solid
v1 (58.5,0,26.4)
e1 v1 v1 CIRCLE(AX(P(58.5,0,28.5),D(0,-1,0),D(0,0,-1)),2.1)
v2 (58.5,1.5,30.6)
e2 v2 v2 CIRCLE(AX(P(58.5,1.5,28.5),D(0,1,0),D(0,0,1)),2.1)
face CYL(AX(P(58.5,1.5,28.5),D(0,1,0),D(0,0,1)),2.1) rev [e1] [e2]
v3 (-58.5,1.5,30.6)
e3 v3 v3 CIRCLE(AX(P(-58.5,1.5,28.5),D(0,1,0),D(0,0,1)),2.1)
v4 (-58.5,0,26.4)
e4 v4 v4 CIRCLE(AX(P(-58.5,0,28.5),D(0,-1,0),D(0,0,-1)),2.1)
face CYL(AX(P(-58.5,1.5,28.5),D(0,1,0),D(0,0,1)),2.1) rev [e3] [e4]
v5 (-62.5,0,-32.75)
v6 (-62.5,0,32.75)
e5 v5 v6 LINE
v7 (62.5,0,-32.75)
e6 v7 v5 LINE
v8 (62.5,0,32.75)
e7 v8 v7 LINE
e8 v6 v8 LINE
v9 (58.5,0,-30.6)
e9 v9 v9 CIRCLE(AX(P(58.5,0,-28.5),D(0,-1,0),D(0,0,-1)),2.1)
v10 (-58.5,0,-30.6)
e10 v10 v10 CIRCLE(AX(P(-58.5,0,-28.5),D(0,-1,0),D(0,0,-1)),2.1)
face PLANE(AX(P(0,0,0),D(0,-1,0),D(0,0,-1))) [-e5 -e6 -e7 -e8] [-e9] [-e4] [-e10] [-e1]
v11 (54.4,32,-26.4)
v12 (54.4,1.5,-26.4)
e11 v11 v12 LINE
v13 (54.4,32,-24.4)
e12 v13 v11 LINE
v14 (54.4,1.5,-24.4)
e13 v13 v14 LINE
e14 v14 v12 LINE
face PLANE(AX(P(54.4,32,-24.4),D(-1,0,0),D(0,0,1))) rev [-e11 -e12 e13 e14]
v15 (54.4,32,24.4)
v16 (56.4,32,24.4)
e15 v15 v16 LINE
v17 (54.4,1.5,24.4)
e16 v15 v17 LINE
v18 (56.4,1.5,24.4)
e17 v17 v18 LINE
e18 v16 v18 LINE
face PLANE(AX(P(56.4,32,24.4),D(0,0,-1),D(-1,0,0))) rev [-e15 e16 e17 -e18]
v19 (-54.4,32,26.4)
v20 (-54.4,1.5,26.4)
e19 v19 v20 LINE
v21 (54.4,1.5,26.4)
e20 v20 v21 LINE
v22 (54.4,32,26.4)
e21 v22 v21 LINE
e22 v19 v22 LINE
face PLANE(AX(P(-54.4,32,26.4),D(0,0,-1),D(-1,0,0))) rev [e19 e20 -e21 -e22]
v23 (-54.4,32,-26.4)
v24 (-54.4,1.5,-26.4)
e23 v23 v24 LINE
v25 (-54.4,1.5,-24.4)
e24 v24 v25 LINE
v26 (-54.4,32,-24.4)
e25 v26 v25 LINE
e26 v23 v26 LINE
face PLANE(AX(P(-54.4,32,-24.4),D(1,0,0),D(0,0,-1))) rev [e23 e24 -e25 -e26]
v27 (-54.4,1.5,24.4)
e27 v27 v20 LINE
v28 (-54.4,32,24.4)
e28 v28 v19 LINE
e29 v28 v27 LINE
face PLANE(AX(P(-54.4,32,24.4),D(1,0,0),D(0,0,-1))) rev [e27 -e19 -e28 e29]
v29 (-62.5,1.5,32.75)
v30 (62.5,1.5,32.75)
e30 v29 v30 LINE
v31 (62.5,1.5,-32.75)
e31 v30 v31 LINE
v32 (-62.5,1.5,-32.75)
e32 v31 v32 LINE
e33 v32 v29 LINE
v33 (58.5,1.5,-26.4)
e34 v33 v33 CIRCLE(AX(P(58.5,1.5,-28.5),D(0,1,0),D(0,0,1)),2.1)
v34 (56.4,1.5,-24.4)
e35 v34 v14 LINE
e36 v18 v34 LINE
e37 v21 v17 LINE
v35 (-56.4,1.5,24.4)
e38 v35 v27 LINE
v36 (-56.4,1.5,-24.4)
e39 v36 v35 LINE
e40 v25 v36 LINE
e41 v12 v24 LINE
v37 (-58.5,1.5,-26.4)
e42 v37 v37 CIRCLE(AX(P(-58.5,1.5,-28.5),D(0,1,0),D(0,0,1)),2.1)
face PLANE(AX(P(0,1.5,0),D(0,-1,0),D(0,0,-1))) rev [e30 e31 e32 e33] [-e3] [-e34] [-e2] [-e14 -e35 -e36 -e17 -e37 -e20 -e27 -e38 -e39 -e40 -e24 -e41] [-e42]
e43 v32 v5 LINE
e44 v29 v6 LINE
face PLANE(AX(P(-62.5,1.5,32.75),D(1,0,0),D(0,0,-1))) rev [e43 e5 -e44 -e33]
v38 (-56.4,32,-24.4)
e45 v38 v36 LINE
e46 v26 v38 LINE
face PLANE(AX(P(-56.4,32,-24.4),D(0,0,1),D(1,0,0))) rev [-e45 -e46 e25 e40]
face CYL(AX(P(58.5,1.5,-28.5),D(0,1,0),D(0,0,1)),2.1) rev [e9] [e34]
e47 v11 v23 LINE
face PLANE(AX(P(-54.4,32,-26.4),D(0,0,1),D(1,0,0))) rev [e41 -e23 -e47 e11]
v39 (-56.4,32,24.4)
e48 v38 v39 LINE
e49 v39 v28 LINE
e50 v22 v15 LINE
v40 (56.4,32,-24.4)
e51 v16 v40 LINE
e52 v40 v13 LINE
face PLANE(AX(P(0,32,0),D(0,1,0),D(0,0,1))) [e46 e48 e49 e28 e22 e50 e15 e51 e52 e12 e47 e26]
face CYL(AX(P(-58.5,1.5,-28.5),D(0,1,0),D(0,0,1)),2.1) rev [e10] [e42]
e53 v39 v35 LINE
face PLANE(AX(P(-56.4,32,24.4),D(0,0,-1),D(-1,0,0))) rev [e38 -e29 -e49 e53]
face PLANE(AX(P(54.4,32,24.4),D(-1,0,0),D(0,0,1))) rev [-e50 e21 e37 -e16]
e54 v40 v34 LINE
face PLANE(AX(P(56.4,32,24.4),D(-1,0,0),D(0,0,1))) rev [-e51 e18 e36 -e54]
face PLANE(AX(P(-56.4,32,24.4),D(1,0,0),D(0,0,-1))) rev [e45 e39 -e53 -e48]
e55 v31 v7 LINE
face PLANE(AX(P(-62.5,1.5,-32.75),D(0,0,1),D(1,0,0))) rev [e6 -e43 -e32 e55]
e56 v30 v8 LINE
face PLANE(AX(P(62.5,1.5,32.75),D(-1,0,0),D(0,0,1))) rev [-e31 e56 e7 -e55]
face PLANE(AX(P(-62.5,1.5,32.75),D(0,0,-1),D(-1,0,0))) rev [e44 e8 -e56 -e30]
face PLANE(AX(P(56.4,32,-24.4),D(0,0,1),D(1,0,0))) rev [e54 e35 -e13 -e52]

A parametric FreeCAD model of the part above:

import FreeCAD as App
import Part
import Sketcher
Q = App.Units.Quantity

doc = App.newDocument("Part")
params = doc.addObject("Spreadsheet::Sheet", "Params")
for row, (alias, value) in enumerate([
    ("sketch1_width", "125 mm"),
    ("sketch1_height", "65.5 mm"),
    ("pad1_length", "1.5 mm"),
    ("sketch2_diameter", "4.2 mm"),
    ("hole_diameter", "4.2 mm"),
    ("sketch3_width", "2 mm"),
    ("sketch3_width2", "108.8 mm"),
    ("sketch3_height", "48.8 mm"),
    ("pad2_length", "30.5 mm"),
], start=1):
    params.set(f"A{row}", alias)
    params.set(f"B{row}", "=" + value)
    params.setAlias(f"B{row}", alias)

body = doc.addObject("PartDesign::Body", "Body")

# Sketch on XZ plane
sketch1 = body.newObject("Sketcher::SketchObject", "Sketch")
sketch1.AttachmentSupport = (doc.getObject("XZ_Plane"), [""])
sketch1.MapMode = "FlatFace"
sketch1.addGeometry([
    Part.LineSegment(App.Vector(-62, -33, 0), App.Vector(-62, 33, 0)),
    Part.LineSegment(App.Vector(-62, 33, 0), App.Vector(62, 33, 0)),
    Part.LineSegment(App.Vector(62, 33, 0), App.Vector(62, -33, 0)),
    Part.LineSegment(App.Vector(62, -33, 0), App.Vector(-62, -33, 0)),
], False)
sketch1.addConstraint([
    Sketcher.Constraint("Coincident", 0, 2, 1, 1),
    Sketcher.Constraint("Coincident", 1, 2, 2, 1),
    Sketcher.Constraint("Coincident", 2, 2, 3, 1),
    Sketcher.Constraint("Coincident", 3, 2, 0, 1),
    Sketcher.Constraint("Vertical", 0),
    Sketcher.Constraint("Horizontal", 1),
    Sketcher.Constraint("Vertical", 2),
    Sketcher.Constraint("Horizontal", 3),
    Sketcher.Constraint("Symmetric", 0, 2, 2, 2, -1, 1),
    Sketcher.Constraint("DistanceX", 1, 1, 1, 2, Q("125 mm")),
    Sketcher.Constraint("DistanceY", 0, 1, 0, 2, Q("65.5 mm")),
])
sketch1.setExpression("Constraints[9]", "Params.sketch1_width")
sketch1.setExpression("Constraints[10]", "Params.sketch1_height")
pad1 = body.newObject("PartDesign::Pad", "Pad")
pad1.Profile = sketch1
pad1.setExpression("Length", "Params.pad1_length")
pad1.Reversed = True

# Sketch on XZ plane
sketch2 = body.newObject("Sketcher::SketchObject", "Sketch001")
sketch2.AttachmentSupport = (doc.getObject("XZ_Plane"), [""])
sketch2.MapMode = "FlatFace"
sketch2.AttachmentOffset = App.Placement(App.Vector(0, 0, -1.5), App.Rotation())
sketch2.addGeometry([
    Part.Circle(App.Vector(-58.5, 28.5, 0), App.Vector(0, 0, 1), 2.1),
    Part.Circle(App.Vector(-58.5, -28.5, 0), App.Vector(0, 0, 1), 2.1),
    Part.Circle(App.Vector(58.5, -28.5, 0), App.Vector(0, 0, 1), 2.1),
    Part.Circle(App.Vector(58.5, 28.5, 0), App.Vector(0, 0, 1), 2.1),
], False)
sketch2.addConstraint([
    Sketcher.Constraint("Equal", 0, 1),
    Sketcher.Constraint("Equal", 1, 2),
    Sketcher.Constraint("Equal", 2, 3),
    Sketcher.Constraint("Symmetric", 0, 3, 2, 3, -1, 1),
    Sketcher.Constraint("Symmetric", 1, 3, 3, 3, -1, 1),
    Sketcher.Constraint("Symmetric", 1, 3, 2, 3, -2),
    Sketcher.Constraint("Diameter", 0, Q("4.2 mm")),
    Sketcher.Constraint("DistanceY", 1, 3, 0, 3, Q("57 mm")),
    Sketcher.Constraint("DistanceX", 1, 3, 2, 3, Q("117 mm")),
])
sketch2.setExpression("Constraints[6]", "Params.sketch2_diameter")
doc.recompute()
hole = body.newObject("PartDesign::Hole", "Hole")
hole.Profile = sketch2
hole.ThreadType = "None"
hole.setExpression("Diameter", "Params.hole_diameter")
hole.DepthType = "ThroughAll"
hole.Reversed = True

# Sketch on XZ plane
sketch3 = body.newObject("Sketcher::SketchObject", "Sketch002")
sketch3.AttachmentSupport = (doc.getObject("XZ_Plane"), [""])
sketch3.MapMode = "FlatFace"
sketch3.AttachmentOffset = App.Placement(App.Vector(0, 0, -1.5), App.Rotation())
sketch3.addGeometry([
    Part.LineSegment(App.Vector(54.4, 24.4, 0), App.Vector(56.4, 24.4, 0)),  # 0
    Part.LineSegment(App.Vector(56.4, 24.4, 0), App.Vector(56.4, -24.4, 0)),  # 1
    Part.LineSegment(App.Vector(56.4, -24.4, 0), App.Vector(54.4, -24.4, 0)),  # 2
    Part.LineSegment(App.Vector(54.4, -24.4, 0), App.Vector(54.4, -26.4, 0)),  # 3
    Part.LineSegment(App.Vector(54.4, -26.4, 0), App.Vector(-54.4, -26.4, 0)),  # 4
    Part.LineSegment(App.Vector(-54.4, -26.4, 0), App.Vector(-54.4, -24.4, 0)),  # 5
    Part.LineSegment(App.Vector(-54.4, -24.4, 0), App.Vector(-56.4, -24.4, 0)),  # 6
    Part.LineSegment(App.Vector(-56.4, -24.4, 0), App.Vector(-56.4, 24.4, 0)),  # 7
    Part.LineSegment(App.Vector(-56.4, 24.4, 0), App.Vector(-54.4, 24.4, 0)),  # 8
    Part.LineSegment(App.Vector(-54.4, 24.4, 0), App.Vector(-54.4, 26.4, 0)),  # 9
    Part.LineSegment(App.Vector(-54.4, 26.4, 0), App.Vector(54.4, 26.4, 0)),  # 10
    Part.LineSegment(App.Vector(54.4, 26.4, 0), App.Vector(54.4, 24.4, 0)),  # 11
], False)
sketch3.addConstraint([
    Sketcher.Constraint("Coincident", 0, 2, 1, 1),
    Sketcher.Constraint("Coincident", 1, 2, 2, 1),
    Sketcher.Constraint("Coincident", 2, 2, 3, 1),
    Sketcher.Constraint("Coincident", 3, 2, 4, 1),
    Sketcher.Constraint("Coincident", 4, 2, 5, 1),
    Sketcher.Constraint("Coincident", 5, 2, 6, 1),
    Sketcher.Constraint("Coincident", 6, 2, 7, 1),
    Sketcher.Constraint("Coincident", 7, 2, 8, 1),
    Sketcher.Constraint("Coincident", 8, 2, 9, 1),
    Sketcher.Constraint("Coincident", 9, 2, 10, 1),
    Sketcher.Constraint("Coincident", 10, 2, 11, 1),
    Sketcher.Constraint("Coincident", 11, 2, 0, 1),
    Sketcher.Constraint("Horizontal", 0),
    Sketcher.Constraint("Vertical", 1),
    Sketcher.Constraint("Horizontal", 2),
    Sketcher.Constraint("Vertical", 3),
    Sketcher.Constraint("Horizontal", 4),
    Sketcher.Constraint("Vertical", 5),
    Sketcher.Constraint("Horizontal", 6),
    Sketcher.Constraint("Vertical", 7),
    Sketcher.Constraint("Horizontal", 8),
    Sketcher.Constraint("Vertical", 9),
    Sketcher.Constraint("Horizontal", 10),
    Sketcher.Constraint("Vertical", 11),
    Sketcher.Constraint("Symmetric", 0, 2, 6, 2, -1, 1),
    Sketcher.Constraint("Symmetric", 2, 2, 8, 2, -1, 1),
    Sketcher.Constraint("Symmetric", 4, 2, 10, 2, -1, 1),
    Sketcher.Constraint("Symmetric", 2, 2, 5, 2, -2),
    Sketcher.Constraint("Equal", 8, 3),
    Sketcher.Constraint("DistanceX", 0, 1, 0, 2, Q("2 mm")),
    Sketcher.Constraint("DistanceX", 4, 2, 4, 1, Q("108.8 mm")),
    Sketcher.Constraint("DistanceY", 1, 2, 1, 1, Q("48.8 mm")),
])
sketch3.setExpression("Constraints[29]", "Params.sketch3_width")
sketch3.setExpression("Constraints[30]", "Params.sketch3_width2")
sketch3.setExpression("Constraints[31]", "Params.sketch3_height")
pad2 = body.newObject("PartDesign::Pad", "Pad001")
pad2.Profile = sketch3
pad2.setExpression("Length", "Params.pad2_length")
pad2.Reversed = True

doc.recompute()
